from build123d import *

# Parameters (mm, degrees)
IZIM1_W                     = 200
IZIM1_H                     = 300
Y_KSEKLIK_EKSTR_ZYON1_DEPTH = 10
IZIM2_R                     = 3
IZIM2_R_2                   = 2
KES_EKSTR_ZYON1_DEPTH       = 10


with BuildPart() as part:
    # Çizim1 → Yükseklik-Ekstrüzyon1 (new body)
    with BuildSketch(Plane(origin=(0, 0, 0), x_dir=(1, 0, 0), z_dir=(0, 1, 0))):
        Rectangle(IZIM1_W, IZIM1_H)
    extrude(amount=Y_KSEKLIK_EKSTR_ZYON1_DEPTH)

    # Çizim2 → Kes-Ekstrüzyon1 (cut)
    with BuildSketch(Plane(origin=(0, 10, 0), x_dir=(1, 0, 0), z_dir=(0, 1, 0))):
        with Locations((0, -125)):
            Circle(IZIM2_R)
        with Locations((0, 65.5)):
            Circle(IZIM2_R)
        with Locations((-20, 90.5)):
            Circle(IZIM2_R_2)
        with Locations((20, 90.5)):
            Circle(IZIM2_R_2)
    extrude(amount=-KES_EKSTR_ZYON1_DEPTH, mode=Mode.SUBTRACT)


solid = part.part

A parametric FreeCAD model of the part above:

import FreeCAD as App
import Part
import Sketcher

V = App.Vector
Q = App.Units.Quantity

doc = App.newDocument("Part")
body = doc.addObject("PartDesign::Body", "Body")

# Sketch on XZ plane
sketch1 = body.newObject("Sketcher::SketchObject", "Sketch")
sketch1.AttachmentSupport = (doc.getObject("XZ_Plane"), [""])
sketch1.MapMode = "FlatFace"
sketch1.addGeometry(Part.LineSegment(V(-100, -150, 0), V(-100, 150, 0)), False)
sketch1.addGeometry(Part.LineSegment(V(-100, 150, 0), V(100, 150, 0)), False)
sketch1.addGeometry(Part.LineSegment(V(100, 150, 0), V(100, -150, 0)), False)
sketch1.addGeometry(Part.LineSegment(V(100, -150, 0), V(-100, -150, 0)), False)
sketch1.addConstraint(Sketcher.Constraint("Coincident", 0, 2, 1, 1))
sketch1.addConstraint(Sketcher.Constraint("Coincident", 1, 2, 2, 1))
sketch1.addConstraint(Sketcher.Constraint("Coincident", 2, 2, 3, 1))
sketch1.addConstraint(Sketcher.Constraint("Coincident", 3, 2, 0, 1))
sketch1.addConstraint(Sketcher.Constraint("Vertical", 0))
sketch1.addConstraint(Sketcher.Constraint("Horizontal", 1))
sketch1.addConstraint(Sketcher.Constraint("Vertical", 2))
sketch1.addConstraint(Sketcher.Constraint("Horizontal", 3))
sketch1.addConstraint(Sketcher.Constraint("Symmetric", 0, 2, 2, 2, -1, 1))
sketch1.addConstraint(Sketcher.Constraint("DistanceX", 1, 1, 1, 2, Q("200 mm")))
sketch1.addConstraint(Sketcher.Constraint("DistanceY", 0, 1, 0, 2, Q("300 mm")))
pad1 = body.newObject("PartDesign::Pad", "Pad")
pad1.Profile = sketch1
pad1.Length = 10
pad1.Reversed = True

# Sketch on XZ plane
sketch2 = body.newObject("Sketcher::SketchObject", "Sketch001")
sketch2.AttachmentSupport = (doc.getObject("XZ_Plane"), [""])
sketch2.MapMode = "FlatFace"
sketch2.AttachmentOffset = App.Placement(V(0, 0, -10), App.Rotation())
sketch2.addGeometry(Part.Circle(V(0, 125, 0), V(0, 0, 1), 3), False)
sketch2.addGeometry(Part.Circle(V(0, -65.5, 0), V(0, 0, 1), 3), False)
sketch2.addGeometry(Part.Circle(V(-20, -90.5, 0), V(0, 0, 1), 2), False)
sketch2.addGeometry(Part.Circle(V(20, -90.5, 0), V(0, 0, 1), 2), False)
sketch2.addConstraint(Sketcher.Constraint("Equal", 0, 1))
sketch2.addConstraint(Sketcher.Constraint("Equal", 2, 3))
sketch2.addConstraint(Sketcher.Constraint("Symmetric", 2, 3, 3, 3, -2))
sketch2.addConstraint(Sketcher.Constraint("PointOnObject", 0, 3, -2))
sketch2.addConstraint(Sketcher.Constraint("PointOnObject", 1, 3, -2))
sketch2.addConstraint(Sketcher.Constraint("Diameter", 0, Q("6 mm")))
sketch2.addConstraint(Sketcher.Constraint("Diameter", 2, Q("4 mm")))
sketch2.addConstraint(Sketcher.Constraint("DistanceY", -1, 1, 0, 3, Q("125 mm")))
sketch2.addConstraint(Sketcher.Constraint("DistanceX", 2, 3, -1, 1, Q("20 mm")))
sketch2.addConstraint(Sketcher.Constraint("DistanceY", 2, 3, 1, 3, Q("25 mm")))
sketch2.addConstraint(Sketcher.Constraint("DistanceY", 1, 3, -1, 1, Q("65.5 mm")))
pocket1 = body.newObject("PartDesign::Pocket", "Pocket")
pocket1.Profile = sketch2
pocket1.Length = 10
pocket1.Reversed = True

doc.recompute()
